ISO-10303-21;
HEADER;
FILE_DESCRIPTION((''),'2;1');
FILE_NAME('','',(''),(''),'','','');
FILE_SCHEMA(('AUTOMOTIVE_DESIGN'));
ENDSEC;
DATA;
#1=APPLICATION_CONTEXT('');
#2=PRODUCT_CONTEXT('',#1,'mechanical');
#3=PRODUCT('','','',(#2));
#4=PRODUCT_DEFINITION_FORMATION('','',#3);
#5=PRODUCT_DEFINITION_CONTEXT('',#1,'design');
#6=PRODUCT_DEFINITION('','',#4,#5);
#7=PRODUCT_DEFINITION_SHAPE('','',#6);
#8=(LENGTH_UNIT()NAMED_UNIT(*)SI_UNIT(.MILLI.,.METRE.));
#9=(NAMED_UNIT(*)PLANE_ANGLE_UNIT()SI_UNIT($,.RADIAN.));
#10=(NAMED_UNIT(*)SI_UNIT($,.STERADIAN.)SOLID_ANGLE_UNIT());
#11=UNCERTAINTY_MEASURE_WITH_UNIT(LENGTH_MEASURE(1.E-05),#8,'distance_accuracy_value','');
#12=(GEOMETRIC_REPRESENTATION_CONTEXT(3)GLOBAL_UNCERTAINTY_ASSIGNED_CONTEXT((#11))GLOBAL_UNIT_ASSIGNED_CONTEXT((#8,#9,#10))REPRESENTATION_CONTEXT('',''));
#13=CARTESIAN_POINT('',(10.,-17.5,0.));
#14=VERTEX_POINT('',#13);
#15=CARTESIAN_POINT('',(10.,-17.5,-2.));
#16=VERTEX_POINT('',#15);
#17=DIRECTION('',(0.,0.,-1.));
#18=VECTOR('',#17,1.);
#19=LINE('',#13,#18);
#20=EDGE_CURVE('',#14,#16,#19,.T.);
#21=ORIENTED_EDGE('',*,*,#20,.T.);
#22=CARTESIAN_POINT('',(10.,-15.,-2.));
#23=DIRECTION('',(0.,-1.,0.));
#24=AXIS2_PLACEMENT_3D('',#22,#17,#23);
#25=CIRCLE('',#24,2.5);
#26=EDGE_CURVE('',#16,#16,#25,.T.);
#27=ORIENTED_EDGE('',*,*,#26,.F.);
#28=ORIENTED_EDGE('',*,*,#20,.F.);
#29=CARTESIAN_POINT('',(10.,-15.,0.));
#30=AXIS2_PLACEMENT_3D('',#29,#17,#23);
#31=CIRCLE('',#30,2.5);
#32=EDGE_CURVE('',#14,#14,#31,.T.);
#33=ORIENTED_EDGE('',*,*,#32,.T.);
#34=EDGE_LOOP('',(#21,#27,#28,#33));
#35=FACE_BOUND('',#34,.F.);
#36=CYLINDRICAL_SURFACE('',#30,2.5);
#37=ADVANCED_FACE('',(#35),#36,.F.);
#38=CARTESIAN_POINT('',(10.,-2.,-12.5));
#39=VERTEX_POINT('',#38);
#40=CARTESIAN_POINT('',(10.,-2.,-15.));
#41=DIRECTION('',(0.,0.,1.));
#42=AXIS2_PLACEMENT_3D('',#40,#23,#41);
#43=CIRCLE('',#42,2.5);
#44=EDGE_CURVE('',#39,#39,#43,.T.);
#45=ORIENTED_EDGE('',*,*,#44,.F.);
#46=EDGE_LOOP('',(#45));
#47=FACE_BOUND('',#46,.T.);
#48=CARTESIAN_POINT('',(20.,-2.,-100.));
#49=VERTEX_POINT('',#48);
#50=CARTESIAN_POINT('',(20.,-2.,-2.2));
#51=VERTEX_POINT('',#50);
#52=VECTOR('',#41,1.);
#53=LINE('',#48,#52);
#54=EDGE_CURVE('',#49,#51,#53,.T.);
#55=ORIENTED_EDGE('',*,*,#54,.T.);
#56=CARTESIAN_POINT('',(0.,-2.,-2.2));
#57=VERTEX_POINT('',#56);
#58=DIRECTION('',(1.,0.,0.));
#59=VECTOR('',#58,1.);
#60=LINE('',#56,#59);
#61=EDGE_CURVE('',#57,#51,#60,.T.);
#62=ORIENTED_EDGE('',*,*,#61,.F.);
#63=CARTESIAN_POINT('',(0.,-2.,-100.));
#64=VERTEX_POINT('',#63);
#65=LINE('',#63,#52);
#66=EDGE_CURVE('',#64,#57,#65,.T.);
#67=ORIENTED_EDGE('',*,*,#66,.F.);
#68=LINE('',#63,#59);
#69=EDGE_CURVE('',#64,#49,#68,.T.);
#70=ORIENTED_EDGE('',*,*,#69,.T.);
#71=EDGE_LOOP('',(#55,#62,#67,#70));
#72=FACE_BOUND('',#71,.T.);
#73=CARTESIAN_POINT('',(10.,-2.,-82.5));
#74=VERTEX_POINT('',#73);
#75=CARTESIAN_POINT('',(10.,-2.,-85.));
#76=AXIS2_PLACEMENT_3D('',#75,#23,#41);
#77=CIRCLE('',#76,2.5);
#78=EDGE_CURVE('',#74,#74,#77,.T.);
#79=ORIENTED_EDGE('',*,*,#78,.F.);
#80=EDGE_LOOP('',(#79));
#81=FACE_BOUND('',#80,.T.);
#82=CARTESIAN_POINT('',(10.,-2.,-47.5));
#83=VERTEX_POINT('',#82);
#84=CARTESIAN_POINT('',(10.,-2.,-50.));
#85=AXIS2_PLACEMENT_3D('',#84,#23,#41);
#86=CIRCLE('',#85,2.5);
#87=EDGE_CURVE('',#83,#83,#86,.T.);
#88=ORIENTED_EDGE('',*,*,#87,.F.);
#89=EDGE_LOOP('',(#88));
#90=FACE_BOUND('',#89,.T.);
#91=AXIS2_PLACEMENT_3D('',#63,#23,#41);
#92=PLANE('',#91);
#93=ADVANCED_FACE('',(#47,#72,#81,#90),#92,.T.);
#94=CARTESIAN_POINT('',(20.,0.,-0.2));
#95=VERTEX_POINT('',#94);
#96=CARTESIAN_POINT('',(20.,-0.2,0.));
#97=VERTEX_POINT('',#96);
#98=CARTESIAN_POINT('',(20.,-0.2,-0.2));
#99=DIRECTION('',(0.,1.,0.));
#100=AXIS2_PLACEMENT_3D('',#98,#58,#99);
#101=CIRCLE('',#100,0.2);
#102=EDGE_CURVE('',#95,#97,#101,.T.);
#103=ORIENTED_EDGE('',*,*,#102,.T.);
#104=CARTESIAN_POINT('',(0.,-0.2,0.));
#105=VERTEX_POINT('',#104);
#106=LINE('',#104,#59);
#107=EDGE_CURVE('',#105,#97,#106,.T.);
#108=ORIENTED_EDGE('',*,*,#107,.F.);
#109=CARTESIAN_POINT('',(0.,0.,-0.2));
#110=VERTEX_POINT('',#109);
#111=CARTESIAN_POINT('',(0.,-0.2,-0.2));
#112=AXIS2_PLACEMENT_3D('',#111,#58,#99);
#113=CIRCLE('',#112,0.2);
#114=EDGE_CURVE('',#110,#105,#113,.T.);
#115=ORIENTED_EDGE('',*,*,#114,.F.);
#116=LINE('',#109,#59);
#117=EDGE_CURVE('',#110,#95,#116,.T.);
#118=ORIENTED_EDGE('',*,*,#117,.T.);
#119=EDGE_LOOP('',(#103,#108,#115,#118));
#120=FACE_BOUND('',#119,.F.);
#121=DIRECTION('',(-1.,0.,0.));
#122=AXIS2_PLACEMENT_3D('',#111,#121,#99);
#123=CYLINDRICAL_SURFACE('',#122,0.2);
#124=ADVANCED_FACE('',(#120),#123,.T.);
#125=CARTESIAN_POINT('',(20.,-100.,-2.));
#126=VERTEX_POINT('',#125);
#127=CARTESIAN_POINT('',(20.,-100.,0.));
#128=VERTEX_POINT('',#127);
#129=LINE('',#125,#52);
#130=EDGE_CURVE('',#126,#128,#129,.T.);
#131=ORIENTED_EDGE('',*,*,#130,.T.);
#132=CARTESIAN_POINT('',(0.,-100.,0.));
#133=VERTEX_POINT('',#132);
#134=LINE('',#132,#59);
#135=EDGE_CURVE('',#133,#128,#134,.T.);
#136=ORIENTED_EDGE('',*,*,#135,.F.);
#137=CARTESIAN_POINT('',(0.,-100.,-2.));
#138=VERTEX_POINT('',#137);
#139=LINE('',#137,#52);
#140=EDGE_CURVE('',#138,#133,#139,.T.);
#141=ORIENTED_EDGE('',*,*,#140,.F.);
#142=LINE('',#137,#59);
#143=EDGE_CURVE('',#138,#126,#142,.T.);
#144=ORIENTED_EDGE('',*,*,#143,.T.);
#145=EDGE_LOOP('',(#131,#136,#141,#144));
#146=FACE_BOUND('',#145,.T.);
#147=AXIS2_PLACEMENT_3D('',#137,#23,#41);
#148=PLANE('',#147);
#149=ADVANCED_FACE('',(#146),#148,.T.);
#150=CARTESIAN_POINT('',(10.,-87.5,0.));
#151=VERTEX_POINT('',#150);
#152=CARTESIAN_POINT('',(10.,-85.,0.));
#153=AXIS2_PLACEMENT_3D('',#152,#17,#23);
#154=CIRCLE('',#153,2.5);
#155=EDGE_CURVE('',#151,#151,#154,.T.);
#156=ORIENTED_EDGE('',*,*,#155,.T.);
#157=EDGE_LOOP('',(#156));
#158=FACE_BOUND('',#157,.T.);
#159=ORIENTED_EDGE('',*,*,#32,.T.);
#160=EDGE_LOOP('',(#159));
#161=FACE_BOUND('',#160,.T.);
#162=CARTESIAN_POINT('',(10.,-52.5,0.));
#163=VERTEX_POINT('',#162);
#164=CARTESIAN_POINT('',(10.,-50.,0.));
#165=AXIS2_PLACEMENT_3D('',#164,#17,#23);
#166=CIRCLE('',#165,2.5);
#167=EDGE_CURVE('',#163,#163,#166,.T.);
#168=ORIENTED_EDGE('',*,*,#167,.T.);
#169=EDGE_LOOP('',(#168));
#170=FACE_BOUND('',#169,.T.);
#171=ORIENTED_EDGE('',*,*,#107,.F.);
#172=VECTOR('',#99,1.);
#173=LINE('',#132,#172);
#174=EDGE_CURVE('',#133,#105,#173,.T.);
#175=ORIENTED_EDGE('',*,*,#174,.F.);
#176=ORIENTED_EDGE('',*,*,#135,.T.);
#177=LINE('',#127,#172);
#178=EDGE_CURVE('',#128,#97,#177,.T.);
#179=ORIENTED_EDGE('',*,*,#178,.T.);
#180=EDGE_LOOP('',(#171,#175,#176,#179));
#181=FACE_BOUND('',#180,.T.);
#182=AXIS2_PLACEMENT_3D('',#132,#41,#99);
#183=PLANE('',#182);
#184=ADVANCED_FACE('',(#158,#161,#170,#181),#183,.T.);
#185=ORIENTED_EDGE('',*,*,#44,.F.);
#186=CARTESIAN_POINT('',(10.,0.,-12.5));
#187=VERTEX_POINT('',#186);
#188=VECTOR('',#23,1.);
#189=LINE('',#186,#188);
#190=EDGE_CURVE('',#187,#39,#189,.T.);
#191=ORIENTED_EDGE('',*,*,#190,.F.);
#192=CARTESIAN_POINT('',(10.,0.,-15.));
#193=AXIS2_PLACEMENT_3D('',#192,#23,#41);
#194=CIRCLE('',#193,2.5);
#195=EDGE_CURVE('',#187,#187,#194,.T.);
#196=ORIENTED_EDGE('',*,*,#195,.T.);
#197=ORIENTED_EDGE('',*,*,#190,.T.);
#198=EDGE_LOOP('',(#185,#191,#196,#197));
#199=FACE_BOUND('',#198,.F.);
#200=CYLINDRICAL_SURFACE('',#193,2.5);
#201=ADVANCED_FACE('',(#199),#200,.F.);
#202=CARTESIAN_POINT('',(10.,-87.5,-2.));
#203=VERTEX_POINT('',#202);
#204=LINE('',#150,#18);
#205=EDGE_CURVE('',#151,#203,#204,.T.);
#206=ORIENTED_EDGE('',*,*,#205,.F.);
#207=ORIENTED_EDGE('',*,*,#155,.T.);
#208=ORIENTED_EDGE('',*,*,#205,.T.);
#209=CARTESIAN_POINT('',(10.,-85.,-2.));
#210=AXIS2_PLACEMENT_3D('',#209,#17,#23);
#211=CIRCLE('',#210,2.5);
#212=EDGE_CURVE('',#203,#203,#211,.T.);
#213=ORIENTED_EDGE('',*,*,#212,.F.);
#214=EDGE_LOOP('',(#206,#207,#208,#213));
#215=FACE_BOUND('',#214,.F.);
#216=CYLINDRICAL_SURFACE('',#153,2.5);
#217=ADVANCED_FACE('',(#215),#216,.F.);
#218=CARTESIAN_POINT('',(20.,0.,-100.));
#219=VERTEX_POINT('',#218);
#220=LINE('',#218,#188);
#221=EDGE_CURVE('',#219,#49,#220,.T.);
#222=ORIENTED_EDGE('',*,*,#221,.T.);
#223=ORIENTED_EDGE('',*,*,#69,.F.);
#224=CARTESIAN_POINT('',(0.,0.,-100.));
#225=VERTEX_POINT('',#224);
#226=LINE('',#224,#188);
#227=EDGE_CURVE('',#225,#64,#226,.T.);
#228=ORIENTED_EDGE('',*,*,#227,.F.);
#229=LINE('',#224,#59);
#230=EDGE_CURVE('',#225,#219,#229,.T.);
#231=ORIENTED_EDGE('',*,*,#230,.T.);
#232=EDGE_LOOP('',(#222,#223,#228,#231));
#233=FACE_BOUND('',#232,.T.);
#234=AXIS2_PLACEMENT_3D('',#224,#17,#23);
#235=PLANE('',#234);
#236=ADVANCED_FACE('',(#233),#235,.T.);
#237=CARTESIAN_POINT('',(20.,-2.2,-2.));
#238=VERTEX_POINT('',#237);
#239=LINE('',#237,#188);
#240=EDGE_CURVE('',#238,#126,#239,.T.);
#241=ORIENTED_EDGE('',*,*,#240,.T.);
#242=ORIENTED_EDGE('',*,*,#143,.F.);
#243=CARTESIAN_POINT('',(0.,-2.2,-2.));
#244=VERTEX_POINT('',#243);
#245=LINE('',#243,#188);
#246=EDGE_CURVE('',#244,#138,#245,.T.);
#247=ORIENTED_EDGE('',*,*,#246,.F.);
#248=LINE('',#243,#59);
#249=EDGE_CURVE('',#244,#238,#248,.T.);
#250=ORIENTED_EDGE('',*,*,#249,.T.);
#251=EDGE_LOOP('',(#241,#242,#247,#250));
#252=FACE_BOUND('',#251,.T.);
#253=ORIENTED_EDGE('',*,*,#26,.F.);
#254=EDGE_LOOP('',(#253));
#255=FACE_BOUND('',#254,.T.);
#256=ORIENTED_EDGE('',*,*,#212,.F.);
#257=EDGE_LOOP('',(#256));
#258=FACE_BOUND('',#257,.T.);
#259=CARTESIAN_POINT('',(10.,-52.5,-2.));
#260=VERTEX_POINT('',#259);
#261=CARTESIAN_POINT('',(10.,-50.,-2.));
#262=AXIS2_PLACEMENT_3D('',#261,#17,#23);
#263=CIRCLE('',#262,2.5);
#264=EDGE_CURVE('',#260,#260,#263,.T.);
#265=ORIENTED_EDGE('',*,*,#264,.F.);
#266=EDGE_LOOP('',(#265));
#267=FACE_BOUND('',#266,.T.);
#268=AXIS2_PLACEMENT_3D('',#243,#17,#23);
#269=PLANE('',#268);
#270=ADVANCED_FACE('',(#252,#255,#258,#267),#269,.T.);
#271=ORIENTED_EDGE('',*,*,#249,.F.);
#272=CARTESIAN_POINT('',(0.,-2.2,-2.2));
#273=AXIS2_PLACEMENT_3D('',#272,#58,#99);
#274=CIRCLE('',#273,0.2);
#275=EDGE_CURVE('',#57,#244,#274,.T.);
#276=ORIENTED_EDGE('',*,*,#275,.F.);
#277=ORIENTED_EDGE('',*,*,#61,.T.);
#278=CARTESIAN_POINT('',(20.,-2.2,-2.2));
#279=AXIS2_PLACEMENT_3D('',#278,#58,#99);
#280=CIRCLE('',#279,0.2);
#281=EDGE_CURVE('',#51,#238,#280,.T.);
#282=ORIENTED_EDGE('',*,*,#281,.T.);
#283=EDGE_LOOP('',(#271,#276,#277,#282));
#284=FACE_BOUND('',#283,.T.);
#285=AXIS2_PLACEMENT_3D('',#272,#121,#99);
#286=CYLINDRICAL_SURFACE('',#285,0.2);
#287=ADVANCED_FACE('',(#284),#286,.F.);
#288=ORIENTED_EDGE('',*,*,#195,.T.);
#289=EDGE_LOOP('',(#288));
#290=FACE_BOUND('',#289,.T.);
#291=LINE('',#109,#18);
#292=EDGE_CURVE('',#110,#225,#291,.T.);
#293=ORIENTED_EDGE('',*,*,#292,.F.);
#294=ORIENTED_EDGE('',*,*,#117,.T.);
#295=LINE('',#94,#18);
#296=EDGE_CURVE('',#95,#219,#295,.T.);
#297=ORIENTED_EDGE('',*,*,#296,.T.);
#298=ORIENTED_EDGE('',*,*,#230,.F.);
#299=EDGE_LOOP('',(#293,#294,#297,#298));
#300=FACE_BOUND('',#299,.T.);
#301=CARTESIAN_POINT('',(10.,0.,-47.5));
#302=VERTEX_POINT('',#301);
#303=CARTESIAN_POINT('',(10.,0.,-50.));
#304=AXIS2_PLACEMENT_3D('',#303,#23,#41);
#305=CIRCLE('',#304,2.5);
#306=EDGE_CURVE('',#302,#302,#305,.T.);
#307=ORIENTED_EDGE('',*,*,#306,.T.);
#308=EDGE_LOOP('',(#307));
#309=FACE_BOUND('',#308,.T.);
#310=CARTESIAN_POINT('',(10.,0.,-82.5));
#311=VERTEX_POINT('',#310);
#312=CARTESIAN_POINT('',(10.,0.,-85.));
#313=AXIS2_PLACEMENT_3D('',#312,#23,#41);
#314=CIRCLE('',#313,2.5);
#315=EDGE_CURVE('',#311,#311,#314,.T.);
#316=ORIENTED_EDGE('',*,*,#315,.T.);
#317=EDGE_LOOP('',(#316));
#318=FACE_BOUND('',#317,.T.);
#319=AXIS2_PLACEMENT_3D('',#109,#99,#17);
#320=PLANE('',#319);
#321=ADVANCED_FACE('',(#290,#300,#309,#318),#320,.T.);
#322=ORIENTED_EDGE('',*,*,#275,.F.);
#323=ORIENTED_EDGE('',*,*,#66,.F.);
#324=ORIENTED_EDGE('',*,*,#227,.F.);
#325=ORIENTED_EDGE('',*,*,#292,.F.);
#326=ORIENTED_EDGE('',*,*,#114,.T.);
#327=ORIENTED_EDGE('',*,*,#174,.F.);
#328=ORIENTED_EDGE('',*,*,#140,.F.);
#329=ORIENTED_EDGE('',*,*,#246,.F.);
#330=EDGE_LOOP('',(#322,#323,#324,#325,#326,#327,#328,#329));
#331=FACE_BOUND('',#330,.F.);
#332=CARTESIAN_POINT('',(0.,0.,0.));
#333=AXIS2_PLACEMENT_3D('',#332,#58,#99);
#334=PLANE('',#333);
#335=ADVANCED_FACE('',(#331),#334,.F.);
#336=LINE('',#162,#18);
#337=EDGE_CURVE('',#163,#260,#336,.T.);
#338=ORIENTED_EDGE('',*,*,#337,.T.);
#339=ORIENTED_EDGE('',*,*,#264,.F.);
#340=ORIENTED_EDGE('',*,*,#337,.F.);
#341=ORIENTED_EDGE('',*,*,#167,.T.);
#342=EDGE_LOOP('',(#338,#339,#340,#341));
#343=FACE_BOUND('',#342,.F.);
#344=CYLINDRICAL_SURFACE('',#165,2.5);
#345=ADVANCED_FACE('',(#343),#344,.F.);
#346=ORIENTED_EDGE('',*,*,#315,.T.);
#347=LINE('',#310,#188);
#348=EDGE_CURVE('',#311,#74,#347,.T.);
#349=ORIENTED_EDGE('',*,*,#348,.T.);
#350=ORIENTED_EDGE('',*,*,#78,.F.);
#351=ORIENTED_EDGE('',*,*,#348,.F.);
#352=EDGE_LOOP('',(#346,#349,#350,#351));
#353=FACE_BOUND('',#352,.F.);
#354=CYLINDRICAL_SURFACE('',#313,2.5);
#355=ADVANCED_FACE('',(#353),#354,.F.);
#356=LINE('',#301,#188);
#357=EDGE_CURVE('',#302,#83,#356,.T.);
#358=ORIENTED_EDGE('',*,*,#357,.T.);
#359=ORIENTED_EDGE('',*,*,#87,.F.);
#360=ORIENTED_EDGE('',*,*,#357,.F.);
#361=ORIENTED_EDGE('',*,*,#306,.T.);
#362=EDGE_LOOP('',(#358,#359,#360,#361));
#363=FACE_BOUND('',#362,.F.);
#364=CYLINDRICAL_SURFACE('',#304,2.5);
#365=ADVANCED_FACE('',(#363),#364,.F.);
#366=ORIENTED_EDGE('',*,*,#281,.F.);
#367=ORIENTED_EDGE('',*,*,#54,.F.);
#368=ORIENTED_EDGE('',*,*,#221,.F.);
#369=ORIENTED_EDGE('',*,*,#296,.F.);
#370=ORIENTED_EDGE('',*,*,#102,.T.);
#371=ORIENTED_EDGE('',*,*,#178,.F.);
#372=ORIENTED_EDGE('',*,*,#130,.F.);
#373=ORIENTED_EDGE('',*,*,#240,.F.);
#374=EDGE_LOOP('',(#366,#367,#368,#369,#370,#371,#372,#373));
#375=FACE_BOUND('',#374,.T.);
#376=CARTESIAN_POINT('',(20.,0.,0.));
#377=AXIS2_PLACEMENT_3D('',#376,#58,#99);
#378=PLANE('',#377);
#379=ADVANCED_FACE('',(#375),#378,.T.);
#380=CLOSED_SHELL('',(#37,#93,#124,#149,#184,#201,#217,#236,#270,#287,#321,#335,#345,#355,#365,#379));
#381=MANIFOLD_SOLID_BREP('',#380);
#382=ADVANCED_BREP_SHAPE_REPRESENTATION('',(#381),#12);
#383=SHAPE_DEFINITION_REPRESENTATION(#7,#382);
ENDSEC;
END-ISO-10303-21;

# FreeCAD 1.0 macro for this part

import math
import FreeCAD as App
import Part
import Sketcher
Q = App.Units.Quantity

doc = App.newDocument("Part")
body = doc.addObject("PartDesign::Body", "Body")

# Sketch on YZ plane
sketch1 = body.newObject("Sketcher::SketchObject", "Sketch")
sketch1.AttachmentSupport = (doc.getObject("YZ_Plane"), [""])
sketch1.MapMode = "FlatFace"
sketch1.addGeometry([
    Part.LineSegment(App.Vector(0, -100, 0), App.Vector(0, -0.2, 0)),  # 0
    Part.ArcOfCircle(Part.Circle(App.Vector(-0.2, -0.2, 0), App.Vector(0, 0, 1), 0.2), math.radians(0), math.radians(90)),  # 1
    Part.LineSegment(App.Vector(-0.2, 0, 0), App.Vector(-100, 0, 0)),  # 2
    Part.LineSegment(App.Vector(-100, 0, 0), App.Vector(-100, -2, 0)),  # 3
    Part.LineSegment(App.Vector(-100, -2, 0), App.Vector(-2.2, -2, 0)),  # 4
    Part.ArcOfCircle(Part.Circle(App.Vector(-2.2, -2.2, 0), App.Vector(0, 0, 1), 0.2), math.radians(0), math.radians(90)),  # 5
    Part.LineSegment(App.Vector(-2, -2.2, 0), App.Vector(-2, -100, 0)),  # 6
    Part.LineSegment(App.Vector(-2, -100, 0), App.Vector(0, -100, 0)),  # 7
], False)
sketch1.addConstraint([
    Sketcher.Constraint("Tangent", 0, 2, 1, 1),
    Sketcher.Constraint("Tangent", 1, 2, 2, 1),
    Sketcher.Constraint("Coincident", 2, 2, 3, 1),
    Sketcher.Constraint("Coincident", 3, 2, 4, 1),
    Sketcher.Constraint("Tangent", 4, 2, 5, 2),
    Sketcher.Constraint("Tangent", 5, 1, 6, 1),
    Sketcher.Constraint("Coincident", 6, 2, 7, 1),
    Sketcher.Constraint("Coincident", 7, 2, 0, 1),
    Sketcher.Constraint("Vertical", 0),
    Sketcher.Constraint("Horizontal", 2),
    Sketcher.Constraint("Vertical", 3),
    Sketcher.Constraint("Horizontal", 4),
    Sketcher.Constraint("Vertical", 6),
    Sketcher.Constraint("Horizontal", 7),
    Sketcher.Constraint("Equal", 1, 5),
    Sketcher.Constraint("PointOnObject", 0, 2, -2),
    Sketcher.Constraint("PointOnObject", 1, 2, -1),
    Sketcher.Constraint("Equal", 2, 0),
    Sketcher.Constraint("Equal", 7, 3),
    Sketcher.Constraint("Radius", 1, Q("0.2 mm")),
    Sketcher.Constraint("DistanceX", 7, 1, 7, 2, Q("2 mm")),
    Sketcher.Constraint("DistanceX", 2, 2, -1, 1, Q("100 mm")),
])
pad1 = body.newObject("PartDesign::Pad", "Pad")
pad1.Profile = sketch1
pad1.Length = 20

# Sketch on XZ plane
sketch2 = body.newObject("Sketcher::SketchObject", "Sketch001")
sketch2.AttachmentSupport = (doc.getObject("XZ_Plane"), [""])
sketch2.MapMode = "FlatFace"
sketch2.addGeometry([
    Part.Circle(App.Vector(10, -15, 0), App.Vector(0, 0, 1), 2.5),
    Part.Circle(App.Vector(10, -50, 0), App.Vector(0, 0, 1), 2.5),
    Part.Circle(App.Vector(10, -85, 0), App.Vector(0, 0, 1), 2.5),
], False)
sketch2.addConstraint([
    Sketcher.Constraint("Equal", 0, 1),
    Sketcher.Constraint("Equal", 1, 2),
    Sketcher.Constraint("Vertical", 0, 3, 1, 3),
    Sketcher.Constraint("Vertical", 1, 3, 2, 3),
    Sketcher.Constraint("Diameter", 0, Q("5 mm")),
    Sketcher.Constraint("DistanceX", -1, 1, 0, 3, Q("10 mm")),
    Sketcher.Constraint("DistanceY", 0, 3, -1, 1, Q("15 mm")),
    Sketcher.Constraint("DistanceY", 1, 3, -1, 1, Q("50 mm")),
    Sketcher.Constraint("DistanceY", 2, 3, -1, 1, Q("85 mm")),
])
doc.recompute()
hole = body.newObject("PartDesign::Hole", "Hole")
hole.Profile = sketch2
hole.ThreadType = "None"
hole.Diameter = 5
hole.DepthType = "ThroughAll"
hole.Reversed = True

# Sketch on XY plane
sketch3 = body.newObject("Sketcher::SketchObject", "Sketch002")
sketch3.AttachmentSupport = (doc.getObject("XY_Plane"), [""])
sketch3.MapMode = "FlatFace"
sketch3.addGeometry([
    Part.Circle(App.Vector(10, -85, 0), App.Vector(0, 0, 1), 2.5),
    Part.Circle(App.Vector(10, -50, 0), App.Vector(0, 0, 1), 2.5),
    Part.Circle(App.Vector(10, -15, 0), App.Vector(0, 0, 1), 2.5),
], False)
sketch3.addConstraint([
    Sketcher.Constraint("Equal", 0, 1),
    Sketcher.Constraint("Equal", 1, 2),
    Sketcher.Constraint("Vertical", 0, 3, 1, 3),
    Sketcher.Constraint("Vertical", 1, 3, 2, 3),
    Sketcher.Constraint("Diameter", 0, Q("5 mm")),
    Sketcher.Constraint("DistanceX", -1, 1, 0, 3, Q("10 mm")),
    Sketcher.Constraint("DistanceY", 0, 3, -1, 1, Q("85 mm")),
    Sketcher.Constraint("DistanceY", 1, 3, -1, 1, Q("50 mm")),
    Sketcher.Constraint("DistanceY", 2, 3, -1, 1, Q("15 mm")),
])
doc.recompute()
hole2 = body.newObject("PartDesign::Hole", "Hole001")
hole2.Profile = sketch3
hole2.ThreadType = "None"
hole2.Diameter = 5
hole2.DepthType = "ThroughAll"

doc.recompute()
